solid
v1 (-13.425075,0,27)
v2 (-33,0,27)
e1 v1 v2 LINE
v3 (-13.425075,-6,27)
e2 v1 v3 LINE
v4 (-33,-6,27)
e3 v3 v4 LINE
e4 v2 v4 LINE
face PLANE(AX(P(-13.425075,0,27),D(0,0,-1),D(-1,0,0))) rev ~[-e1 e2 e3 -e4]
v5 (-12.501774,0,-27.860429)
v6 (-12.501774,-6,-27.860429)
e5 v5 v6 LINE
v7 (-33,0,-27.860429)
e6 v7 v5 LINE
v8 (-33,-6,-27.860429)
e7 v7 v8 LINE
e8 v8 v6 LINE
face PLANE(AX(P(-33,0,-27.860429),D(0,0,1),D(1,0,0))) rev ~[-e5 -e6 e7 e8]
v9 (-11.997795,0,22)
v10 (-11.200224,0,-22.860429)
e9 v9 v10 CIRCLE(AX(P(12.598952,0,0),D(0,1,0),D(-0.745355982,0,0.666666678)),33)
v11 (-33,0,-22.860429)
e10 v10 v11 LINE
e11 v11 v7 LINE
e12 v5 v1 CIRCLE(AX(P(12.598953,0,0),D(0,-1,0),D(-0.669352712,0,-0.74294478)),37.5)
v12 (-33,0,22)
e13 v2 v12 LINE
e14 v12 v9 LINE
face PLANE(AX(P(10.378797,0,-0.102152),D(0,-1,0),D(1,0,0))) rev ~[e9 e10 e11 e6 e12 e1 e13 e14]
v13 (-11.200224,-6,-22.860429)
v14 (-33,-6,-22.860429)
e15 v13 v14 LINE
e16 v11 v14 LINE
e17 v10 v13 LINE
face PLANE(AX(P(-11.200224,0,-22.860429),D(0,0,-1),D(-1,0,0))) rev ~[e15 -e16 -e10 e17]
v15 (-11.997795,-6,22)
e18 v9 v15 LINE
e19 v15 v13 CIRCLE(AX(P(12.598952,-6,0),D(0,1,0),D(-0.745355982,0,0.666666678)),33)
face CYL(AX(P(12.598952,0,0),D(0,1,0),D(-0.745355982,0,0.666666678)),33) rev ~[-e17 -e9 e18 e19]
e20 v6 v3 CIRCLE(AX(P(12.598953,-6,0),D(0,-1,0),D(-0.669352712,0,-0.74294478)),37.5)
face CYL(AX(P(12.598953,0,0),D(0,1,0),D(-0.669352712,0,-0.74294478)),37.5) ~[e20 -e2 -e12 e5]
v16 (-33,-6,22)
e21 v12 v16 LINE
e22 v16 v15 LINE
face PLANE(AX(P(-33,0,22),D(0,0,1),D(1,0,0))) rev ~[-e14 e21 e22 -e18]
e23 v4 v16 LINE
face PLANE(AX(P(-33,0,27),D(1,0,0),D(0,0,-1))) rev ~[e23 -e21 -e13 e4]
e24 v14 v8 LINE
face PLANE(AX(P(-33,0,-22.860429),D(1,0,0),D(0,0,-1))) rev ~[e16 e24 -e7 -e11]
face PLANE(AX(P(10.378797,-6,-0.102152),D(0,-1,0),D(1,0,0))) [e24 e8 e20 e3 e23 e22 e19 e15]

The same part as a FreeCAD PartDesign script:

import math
import FreeCAD as App
import Part
import Sketcher

doc = App.newDocument("Part")
body = doc.addObject("PartDesign::Body", "Body")

sketch1 = doc.addObject("Sketcher::SketchObject", "Sketch")
body.addObject(sketch1)
sketch1.AttachmentSupport = (doc.XZ_Plane, [""])
sketch1.MapMode = "FlatFace"
sketch1.addGeometry([
    Part.LineSegment(App.Vector(-33, 22, 0), App.Vector(-12, 22, 0)),
    Part.ArcOfCircle(Part.Circle(App.Vector(13, 0, 0), App.Vector(0, 0, 1), 33), math.radians(-136), math.radians(138)),
    Part.LineSegment(App.Vector(-11, -23, 0), App.Vector(-33, -23, 0)),
    Part.LineSegment(App.Vector(-33, -23, 0), App.Vector(-33, -28, 0)),
    Part.LineSegment(App.Vector(-33, -28, 0), App.Vector(-13, -28, 0)),
    Part.ArcOfCircle(Part.Circle(App.Vector(13, 0, 0), App.Vector(0, 0, 1), 38), math.radians(-132), math.radians(134)),
    Part.LineSegment(App.Vector(-13, 27, 0), App.Vector(-33, 27, 0)),
    Part.LineSegment(App.Vector(-33, 27, 0), App.Vector(-33, 22, 0)),
], False)
sketch1.addConstraint([
    Sketcher.Constraint("Coincident", 0, 2, 1, 2),
    Sketcher.Constraint("Coincident", 1, 1, 2, 1),
    Sketcher.Constraint("Coincident", 2, 2, 3, 1),
    Sketcher.Constraint("Coincident", 3, 2, 4, 1),
    Sketcher.Constraint("Coincident", 4, 2, 5, 1),
    Sketcher.Constraint("Coincident", 5, 2, 6, 1),
    Sketcher.Constraint("Coincident", 6, 2, 7, 1),
    Sketcher.Constraint("Coincident", 7, 2, 0, 1),
    Sketcher.Constraint("Horizontal", 0),
    Sketcher.Constraint("Horizontal", 2),
    Sketcher.Constraint("Vertical", 3),
    Sketcher.Constraint("Horizontal", 4),
    Sketcher.Constraint("Horizontal", 6),
    Sketcher.Constraint("Vertical", 7),
    Sketcher.Constraint("Coincident", 5, 3, 1, 3),
    Sketcher.Constraint("PointOnObject", 1, 3, -1),
    Sketcher.Constraint("Vertical", 3, 2, 6, 2),
    Sketcher.Constraint("Equal", 3, 7),
    Sketcher.Constraint("Radius", 1, 33.0),
    Sketcher.Constraint("Radius", 5, 37.5),
    Sketcher.Constraint("DistanceY", 3, 2, 3, 1, 5.0),
    Sketcher.Constraint("DistanceY", -1, 1, 0, 2, 22.0),
    Sketcher.Constraint("DistanceX", 2, 2, -1, 1, 33.0),
    Sketcher.Constraint("DistanceX", 0, 1, 0, 2, 21.002205),
    Sketcher.Constraint("DistanceX", 2, 2, 2, 1, 21.799776),
])
pad1 = doc.addObject("PartDesign::Pad", "Pad")
body.addObject(pad1)
pad1.Profile = sketch1
pad1.Length = 6

doc.recompute()
